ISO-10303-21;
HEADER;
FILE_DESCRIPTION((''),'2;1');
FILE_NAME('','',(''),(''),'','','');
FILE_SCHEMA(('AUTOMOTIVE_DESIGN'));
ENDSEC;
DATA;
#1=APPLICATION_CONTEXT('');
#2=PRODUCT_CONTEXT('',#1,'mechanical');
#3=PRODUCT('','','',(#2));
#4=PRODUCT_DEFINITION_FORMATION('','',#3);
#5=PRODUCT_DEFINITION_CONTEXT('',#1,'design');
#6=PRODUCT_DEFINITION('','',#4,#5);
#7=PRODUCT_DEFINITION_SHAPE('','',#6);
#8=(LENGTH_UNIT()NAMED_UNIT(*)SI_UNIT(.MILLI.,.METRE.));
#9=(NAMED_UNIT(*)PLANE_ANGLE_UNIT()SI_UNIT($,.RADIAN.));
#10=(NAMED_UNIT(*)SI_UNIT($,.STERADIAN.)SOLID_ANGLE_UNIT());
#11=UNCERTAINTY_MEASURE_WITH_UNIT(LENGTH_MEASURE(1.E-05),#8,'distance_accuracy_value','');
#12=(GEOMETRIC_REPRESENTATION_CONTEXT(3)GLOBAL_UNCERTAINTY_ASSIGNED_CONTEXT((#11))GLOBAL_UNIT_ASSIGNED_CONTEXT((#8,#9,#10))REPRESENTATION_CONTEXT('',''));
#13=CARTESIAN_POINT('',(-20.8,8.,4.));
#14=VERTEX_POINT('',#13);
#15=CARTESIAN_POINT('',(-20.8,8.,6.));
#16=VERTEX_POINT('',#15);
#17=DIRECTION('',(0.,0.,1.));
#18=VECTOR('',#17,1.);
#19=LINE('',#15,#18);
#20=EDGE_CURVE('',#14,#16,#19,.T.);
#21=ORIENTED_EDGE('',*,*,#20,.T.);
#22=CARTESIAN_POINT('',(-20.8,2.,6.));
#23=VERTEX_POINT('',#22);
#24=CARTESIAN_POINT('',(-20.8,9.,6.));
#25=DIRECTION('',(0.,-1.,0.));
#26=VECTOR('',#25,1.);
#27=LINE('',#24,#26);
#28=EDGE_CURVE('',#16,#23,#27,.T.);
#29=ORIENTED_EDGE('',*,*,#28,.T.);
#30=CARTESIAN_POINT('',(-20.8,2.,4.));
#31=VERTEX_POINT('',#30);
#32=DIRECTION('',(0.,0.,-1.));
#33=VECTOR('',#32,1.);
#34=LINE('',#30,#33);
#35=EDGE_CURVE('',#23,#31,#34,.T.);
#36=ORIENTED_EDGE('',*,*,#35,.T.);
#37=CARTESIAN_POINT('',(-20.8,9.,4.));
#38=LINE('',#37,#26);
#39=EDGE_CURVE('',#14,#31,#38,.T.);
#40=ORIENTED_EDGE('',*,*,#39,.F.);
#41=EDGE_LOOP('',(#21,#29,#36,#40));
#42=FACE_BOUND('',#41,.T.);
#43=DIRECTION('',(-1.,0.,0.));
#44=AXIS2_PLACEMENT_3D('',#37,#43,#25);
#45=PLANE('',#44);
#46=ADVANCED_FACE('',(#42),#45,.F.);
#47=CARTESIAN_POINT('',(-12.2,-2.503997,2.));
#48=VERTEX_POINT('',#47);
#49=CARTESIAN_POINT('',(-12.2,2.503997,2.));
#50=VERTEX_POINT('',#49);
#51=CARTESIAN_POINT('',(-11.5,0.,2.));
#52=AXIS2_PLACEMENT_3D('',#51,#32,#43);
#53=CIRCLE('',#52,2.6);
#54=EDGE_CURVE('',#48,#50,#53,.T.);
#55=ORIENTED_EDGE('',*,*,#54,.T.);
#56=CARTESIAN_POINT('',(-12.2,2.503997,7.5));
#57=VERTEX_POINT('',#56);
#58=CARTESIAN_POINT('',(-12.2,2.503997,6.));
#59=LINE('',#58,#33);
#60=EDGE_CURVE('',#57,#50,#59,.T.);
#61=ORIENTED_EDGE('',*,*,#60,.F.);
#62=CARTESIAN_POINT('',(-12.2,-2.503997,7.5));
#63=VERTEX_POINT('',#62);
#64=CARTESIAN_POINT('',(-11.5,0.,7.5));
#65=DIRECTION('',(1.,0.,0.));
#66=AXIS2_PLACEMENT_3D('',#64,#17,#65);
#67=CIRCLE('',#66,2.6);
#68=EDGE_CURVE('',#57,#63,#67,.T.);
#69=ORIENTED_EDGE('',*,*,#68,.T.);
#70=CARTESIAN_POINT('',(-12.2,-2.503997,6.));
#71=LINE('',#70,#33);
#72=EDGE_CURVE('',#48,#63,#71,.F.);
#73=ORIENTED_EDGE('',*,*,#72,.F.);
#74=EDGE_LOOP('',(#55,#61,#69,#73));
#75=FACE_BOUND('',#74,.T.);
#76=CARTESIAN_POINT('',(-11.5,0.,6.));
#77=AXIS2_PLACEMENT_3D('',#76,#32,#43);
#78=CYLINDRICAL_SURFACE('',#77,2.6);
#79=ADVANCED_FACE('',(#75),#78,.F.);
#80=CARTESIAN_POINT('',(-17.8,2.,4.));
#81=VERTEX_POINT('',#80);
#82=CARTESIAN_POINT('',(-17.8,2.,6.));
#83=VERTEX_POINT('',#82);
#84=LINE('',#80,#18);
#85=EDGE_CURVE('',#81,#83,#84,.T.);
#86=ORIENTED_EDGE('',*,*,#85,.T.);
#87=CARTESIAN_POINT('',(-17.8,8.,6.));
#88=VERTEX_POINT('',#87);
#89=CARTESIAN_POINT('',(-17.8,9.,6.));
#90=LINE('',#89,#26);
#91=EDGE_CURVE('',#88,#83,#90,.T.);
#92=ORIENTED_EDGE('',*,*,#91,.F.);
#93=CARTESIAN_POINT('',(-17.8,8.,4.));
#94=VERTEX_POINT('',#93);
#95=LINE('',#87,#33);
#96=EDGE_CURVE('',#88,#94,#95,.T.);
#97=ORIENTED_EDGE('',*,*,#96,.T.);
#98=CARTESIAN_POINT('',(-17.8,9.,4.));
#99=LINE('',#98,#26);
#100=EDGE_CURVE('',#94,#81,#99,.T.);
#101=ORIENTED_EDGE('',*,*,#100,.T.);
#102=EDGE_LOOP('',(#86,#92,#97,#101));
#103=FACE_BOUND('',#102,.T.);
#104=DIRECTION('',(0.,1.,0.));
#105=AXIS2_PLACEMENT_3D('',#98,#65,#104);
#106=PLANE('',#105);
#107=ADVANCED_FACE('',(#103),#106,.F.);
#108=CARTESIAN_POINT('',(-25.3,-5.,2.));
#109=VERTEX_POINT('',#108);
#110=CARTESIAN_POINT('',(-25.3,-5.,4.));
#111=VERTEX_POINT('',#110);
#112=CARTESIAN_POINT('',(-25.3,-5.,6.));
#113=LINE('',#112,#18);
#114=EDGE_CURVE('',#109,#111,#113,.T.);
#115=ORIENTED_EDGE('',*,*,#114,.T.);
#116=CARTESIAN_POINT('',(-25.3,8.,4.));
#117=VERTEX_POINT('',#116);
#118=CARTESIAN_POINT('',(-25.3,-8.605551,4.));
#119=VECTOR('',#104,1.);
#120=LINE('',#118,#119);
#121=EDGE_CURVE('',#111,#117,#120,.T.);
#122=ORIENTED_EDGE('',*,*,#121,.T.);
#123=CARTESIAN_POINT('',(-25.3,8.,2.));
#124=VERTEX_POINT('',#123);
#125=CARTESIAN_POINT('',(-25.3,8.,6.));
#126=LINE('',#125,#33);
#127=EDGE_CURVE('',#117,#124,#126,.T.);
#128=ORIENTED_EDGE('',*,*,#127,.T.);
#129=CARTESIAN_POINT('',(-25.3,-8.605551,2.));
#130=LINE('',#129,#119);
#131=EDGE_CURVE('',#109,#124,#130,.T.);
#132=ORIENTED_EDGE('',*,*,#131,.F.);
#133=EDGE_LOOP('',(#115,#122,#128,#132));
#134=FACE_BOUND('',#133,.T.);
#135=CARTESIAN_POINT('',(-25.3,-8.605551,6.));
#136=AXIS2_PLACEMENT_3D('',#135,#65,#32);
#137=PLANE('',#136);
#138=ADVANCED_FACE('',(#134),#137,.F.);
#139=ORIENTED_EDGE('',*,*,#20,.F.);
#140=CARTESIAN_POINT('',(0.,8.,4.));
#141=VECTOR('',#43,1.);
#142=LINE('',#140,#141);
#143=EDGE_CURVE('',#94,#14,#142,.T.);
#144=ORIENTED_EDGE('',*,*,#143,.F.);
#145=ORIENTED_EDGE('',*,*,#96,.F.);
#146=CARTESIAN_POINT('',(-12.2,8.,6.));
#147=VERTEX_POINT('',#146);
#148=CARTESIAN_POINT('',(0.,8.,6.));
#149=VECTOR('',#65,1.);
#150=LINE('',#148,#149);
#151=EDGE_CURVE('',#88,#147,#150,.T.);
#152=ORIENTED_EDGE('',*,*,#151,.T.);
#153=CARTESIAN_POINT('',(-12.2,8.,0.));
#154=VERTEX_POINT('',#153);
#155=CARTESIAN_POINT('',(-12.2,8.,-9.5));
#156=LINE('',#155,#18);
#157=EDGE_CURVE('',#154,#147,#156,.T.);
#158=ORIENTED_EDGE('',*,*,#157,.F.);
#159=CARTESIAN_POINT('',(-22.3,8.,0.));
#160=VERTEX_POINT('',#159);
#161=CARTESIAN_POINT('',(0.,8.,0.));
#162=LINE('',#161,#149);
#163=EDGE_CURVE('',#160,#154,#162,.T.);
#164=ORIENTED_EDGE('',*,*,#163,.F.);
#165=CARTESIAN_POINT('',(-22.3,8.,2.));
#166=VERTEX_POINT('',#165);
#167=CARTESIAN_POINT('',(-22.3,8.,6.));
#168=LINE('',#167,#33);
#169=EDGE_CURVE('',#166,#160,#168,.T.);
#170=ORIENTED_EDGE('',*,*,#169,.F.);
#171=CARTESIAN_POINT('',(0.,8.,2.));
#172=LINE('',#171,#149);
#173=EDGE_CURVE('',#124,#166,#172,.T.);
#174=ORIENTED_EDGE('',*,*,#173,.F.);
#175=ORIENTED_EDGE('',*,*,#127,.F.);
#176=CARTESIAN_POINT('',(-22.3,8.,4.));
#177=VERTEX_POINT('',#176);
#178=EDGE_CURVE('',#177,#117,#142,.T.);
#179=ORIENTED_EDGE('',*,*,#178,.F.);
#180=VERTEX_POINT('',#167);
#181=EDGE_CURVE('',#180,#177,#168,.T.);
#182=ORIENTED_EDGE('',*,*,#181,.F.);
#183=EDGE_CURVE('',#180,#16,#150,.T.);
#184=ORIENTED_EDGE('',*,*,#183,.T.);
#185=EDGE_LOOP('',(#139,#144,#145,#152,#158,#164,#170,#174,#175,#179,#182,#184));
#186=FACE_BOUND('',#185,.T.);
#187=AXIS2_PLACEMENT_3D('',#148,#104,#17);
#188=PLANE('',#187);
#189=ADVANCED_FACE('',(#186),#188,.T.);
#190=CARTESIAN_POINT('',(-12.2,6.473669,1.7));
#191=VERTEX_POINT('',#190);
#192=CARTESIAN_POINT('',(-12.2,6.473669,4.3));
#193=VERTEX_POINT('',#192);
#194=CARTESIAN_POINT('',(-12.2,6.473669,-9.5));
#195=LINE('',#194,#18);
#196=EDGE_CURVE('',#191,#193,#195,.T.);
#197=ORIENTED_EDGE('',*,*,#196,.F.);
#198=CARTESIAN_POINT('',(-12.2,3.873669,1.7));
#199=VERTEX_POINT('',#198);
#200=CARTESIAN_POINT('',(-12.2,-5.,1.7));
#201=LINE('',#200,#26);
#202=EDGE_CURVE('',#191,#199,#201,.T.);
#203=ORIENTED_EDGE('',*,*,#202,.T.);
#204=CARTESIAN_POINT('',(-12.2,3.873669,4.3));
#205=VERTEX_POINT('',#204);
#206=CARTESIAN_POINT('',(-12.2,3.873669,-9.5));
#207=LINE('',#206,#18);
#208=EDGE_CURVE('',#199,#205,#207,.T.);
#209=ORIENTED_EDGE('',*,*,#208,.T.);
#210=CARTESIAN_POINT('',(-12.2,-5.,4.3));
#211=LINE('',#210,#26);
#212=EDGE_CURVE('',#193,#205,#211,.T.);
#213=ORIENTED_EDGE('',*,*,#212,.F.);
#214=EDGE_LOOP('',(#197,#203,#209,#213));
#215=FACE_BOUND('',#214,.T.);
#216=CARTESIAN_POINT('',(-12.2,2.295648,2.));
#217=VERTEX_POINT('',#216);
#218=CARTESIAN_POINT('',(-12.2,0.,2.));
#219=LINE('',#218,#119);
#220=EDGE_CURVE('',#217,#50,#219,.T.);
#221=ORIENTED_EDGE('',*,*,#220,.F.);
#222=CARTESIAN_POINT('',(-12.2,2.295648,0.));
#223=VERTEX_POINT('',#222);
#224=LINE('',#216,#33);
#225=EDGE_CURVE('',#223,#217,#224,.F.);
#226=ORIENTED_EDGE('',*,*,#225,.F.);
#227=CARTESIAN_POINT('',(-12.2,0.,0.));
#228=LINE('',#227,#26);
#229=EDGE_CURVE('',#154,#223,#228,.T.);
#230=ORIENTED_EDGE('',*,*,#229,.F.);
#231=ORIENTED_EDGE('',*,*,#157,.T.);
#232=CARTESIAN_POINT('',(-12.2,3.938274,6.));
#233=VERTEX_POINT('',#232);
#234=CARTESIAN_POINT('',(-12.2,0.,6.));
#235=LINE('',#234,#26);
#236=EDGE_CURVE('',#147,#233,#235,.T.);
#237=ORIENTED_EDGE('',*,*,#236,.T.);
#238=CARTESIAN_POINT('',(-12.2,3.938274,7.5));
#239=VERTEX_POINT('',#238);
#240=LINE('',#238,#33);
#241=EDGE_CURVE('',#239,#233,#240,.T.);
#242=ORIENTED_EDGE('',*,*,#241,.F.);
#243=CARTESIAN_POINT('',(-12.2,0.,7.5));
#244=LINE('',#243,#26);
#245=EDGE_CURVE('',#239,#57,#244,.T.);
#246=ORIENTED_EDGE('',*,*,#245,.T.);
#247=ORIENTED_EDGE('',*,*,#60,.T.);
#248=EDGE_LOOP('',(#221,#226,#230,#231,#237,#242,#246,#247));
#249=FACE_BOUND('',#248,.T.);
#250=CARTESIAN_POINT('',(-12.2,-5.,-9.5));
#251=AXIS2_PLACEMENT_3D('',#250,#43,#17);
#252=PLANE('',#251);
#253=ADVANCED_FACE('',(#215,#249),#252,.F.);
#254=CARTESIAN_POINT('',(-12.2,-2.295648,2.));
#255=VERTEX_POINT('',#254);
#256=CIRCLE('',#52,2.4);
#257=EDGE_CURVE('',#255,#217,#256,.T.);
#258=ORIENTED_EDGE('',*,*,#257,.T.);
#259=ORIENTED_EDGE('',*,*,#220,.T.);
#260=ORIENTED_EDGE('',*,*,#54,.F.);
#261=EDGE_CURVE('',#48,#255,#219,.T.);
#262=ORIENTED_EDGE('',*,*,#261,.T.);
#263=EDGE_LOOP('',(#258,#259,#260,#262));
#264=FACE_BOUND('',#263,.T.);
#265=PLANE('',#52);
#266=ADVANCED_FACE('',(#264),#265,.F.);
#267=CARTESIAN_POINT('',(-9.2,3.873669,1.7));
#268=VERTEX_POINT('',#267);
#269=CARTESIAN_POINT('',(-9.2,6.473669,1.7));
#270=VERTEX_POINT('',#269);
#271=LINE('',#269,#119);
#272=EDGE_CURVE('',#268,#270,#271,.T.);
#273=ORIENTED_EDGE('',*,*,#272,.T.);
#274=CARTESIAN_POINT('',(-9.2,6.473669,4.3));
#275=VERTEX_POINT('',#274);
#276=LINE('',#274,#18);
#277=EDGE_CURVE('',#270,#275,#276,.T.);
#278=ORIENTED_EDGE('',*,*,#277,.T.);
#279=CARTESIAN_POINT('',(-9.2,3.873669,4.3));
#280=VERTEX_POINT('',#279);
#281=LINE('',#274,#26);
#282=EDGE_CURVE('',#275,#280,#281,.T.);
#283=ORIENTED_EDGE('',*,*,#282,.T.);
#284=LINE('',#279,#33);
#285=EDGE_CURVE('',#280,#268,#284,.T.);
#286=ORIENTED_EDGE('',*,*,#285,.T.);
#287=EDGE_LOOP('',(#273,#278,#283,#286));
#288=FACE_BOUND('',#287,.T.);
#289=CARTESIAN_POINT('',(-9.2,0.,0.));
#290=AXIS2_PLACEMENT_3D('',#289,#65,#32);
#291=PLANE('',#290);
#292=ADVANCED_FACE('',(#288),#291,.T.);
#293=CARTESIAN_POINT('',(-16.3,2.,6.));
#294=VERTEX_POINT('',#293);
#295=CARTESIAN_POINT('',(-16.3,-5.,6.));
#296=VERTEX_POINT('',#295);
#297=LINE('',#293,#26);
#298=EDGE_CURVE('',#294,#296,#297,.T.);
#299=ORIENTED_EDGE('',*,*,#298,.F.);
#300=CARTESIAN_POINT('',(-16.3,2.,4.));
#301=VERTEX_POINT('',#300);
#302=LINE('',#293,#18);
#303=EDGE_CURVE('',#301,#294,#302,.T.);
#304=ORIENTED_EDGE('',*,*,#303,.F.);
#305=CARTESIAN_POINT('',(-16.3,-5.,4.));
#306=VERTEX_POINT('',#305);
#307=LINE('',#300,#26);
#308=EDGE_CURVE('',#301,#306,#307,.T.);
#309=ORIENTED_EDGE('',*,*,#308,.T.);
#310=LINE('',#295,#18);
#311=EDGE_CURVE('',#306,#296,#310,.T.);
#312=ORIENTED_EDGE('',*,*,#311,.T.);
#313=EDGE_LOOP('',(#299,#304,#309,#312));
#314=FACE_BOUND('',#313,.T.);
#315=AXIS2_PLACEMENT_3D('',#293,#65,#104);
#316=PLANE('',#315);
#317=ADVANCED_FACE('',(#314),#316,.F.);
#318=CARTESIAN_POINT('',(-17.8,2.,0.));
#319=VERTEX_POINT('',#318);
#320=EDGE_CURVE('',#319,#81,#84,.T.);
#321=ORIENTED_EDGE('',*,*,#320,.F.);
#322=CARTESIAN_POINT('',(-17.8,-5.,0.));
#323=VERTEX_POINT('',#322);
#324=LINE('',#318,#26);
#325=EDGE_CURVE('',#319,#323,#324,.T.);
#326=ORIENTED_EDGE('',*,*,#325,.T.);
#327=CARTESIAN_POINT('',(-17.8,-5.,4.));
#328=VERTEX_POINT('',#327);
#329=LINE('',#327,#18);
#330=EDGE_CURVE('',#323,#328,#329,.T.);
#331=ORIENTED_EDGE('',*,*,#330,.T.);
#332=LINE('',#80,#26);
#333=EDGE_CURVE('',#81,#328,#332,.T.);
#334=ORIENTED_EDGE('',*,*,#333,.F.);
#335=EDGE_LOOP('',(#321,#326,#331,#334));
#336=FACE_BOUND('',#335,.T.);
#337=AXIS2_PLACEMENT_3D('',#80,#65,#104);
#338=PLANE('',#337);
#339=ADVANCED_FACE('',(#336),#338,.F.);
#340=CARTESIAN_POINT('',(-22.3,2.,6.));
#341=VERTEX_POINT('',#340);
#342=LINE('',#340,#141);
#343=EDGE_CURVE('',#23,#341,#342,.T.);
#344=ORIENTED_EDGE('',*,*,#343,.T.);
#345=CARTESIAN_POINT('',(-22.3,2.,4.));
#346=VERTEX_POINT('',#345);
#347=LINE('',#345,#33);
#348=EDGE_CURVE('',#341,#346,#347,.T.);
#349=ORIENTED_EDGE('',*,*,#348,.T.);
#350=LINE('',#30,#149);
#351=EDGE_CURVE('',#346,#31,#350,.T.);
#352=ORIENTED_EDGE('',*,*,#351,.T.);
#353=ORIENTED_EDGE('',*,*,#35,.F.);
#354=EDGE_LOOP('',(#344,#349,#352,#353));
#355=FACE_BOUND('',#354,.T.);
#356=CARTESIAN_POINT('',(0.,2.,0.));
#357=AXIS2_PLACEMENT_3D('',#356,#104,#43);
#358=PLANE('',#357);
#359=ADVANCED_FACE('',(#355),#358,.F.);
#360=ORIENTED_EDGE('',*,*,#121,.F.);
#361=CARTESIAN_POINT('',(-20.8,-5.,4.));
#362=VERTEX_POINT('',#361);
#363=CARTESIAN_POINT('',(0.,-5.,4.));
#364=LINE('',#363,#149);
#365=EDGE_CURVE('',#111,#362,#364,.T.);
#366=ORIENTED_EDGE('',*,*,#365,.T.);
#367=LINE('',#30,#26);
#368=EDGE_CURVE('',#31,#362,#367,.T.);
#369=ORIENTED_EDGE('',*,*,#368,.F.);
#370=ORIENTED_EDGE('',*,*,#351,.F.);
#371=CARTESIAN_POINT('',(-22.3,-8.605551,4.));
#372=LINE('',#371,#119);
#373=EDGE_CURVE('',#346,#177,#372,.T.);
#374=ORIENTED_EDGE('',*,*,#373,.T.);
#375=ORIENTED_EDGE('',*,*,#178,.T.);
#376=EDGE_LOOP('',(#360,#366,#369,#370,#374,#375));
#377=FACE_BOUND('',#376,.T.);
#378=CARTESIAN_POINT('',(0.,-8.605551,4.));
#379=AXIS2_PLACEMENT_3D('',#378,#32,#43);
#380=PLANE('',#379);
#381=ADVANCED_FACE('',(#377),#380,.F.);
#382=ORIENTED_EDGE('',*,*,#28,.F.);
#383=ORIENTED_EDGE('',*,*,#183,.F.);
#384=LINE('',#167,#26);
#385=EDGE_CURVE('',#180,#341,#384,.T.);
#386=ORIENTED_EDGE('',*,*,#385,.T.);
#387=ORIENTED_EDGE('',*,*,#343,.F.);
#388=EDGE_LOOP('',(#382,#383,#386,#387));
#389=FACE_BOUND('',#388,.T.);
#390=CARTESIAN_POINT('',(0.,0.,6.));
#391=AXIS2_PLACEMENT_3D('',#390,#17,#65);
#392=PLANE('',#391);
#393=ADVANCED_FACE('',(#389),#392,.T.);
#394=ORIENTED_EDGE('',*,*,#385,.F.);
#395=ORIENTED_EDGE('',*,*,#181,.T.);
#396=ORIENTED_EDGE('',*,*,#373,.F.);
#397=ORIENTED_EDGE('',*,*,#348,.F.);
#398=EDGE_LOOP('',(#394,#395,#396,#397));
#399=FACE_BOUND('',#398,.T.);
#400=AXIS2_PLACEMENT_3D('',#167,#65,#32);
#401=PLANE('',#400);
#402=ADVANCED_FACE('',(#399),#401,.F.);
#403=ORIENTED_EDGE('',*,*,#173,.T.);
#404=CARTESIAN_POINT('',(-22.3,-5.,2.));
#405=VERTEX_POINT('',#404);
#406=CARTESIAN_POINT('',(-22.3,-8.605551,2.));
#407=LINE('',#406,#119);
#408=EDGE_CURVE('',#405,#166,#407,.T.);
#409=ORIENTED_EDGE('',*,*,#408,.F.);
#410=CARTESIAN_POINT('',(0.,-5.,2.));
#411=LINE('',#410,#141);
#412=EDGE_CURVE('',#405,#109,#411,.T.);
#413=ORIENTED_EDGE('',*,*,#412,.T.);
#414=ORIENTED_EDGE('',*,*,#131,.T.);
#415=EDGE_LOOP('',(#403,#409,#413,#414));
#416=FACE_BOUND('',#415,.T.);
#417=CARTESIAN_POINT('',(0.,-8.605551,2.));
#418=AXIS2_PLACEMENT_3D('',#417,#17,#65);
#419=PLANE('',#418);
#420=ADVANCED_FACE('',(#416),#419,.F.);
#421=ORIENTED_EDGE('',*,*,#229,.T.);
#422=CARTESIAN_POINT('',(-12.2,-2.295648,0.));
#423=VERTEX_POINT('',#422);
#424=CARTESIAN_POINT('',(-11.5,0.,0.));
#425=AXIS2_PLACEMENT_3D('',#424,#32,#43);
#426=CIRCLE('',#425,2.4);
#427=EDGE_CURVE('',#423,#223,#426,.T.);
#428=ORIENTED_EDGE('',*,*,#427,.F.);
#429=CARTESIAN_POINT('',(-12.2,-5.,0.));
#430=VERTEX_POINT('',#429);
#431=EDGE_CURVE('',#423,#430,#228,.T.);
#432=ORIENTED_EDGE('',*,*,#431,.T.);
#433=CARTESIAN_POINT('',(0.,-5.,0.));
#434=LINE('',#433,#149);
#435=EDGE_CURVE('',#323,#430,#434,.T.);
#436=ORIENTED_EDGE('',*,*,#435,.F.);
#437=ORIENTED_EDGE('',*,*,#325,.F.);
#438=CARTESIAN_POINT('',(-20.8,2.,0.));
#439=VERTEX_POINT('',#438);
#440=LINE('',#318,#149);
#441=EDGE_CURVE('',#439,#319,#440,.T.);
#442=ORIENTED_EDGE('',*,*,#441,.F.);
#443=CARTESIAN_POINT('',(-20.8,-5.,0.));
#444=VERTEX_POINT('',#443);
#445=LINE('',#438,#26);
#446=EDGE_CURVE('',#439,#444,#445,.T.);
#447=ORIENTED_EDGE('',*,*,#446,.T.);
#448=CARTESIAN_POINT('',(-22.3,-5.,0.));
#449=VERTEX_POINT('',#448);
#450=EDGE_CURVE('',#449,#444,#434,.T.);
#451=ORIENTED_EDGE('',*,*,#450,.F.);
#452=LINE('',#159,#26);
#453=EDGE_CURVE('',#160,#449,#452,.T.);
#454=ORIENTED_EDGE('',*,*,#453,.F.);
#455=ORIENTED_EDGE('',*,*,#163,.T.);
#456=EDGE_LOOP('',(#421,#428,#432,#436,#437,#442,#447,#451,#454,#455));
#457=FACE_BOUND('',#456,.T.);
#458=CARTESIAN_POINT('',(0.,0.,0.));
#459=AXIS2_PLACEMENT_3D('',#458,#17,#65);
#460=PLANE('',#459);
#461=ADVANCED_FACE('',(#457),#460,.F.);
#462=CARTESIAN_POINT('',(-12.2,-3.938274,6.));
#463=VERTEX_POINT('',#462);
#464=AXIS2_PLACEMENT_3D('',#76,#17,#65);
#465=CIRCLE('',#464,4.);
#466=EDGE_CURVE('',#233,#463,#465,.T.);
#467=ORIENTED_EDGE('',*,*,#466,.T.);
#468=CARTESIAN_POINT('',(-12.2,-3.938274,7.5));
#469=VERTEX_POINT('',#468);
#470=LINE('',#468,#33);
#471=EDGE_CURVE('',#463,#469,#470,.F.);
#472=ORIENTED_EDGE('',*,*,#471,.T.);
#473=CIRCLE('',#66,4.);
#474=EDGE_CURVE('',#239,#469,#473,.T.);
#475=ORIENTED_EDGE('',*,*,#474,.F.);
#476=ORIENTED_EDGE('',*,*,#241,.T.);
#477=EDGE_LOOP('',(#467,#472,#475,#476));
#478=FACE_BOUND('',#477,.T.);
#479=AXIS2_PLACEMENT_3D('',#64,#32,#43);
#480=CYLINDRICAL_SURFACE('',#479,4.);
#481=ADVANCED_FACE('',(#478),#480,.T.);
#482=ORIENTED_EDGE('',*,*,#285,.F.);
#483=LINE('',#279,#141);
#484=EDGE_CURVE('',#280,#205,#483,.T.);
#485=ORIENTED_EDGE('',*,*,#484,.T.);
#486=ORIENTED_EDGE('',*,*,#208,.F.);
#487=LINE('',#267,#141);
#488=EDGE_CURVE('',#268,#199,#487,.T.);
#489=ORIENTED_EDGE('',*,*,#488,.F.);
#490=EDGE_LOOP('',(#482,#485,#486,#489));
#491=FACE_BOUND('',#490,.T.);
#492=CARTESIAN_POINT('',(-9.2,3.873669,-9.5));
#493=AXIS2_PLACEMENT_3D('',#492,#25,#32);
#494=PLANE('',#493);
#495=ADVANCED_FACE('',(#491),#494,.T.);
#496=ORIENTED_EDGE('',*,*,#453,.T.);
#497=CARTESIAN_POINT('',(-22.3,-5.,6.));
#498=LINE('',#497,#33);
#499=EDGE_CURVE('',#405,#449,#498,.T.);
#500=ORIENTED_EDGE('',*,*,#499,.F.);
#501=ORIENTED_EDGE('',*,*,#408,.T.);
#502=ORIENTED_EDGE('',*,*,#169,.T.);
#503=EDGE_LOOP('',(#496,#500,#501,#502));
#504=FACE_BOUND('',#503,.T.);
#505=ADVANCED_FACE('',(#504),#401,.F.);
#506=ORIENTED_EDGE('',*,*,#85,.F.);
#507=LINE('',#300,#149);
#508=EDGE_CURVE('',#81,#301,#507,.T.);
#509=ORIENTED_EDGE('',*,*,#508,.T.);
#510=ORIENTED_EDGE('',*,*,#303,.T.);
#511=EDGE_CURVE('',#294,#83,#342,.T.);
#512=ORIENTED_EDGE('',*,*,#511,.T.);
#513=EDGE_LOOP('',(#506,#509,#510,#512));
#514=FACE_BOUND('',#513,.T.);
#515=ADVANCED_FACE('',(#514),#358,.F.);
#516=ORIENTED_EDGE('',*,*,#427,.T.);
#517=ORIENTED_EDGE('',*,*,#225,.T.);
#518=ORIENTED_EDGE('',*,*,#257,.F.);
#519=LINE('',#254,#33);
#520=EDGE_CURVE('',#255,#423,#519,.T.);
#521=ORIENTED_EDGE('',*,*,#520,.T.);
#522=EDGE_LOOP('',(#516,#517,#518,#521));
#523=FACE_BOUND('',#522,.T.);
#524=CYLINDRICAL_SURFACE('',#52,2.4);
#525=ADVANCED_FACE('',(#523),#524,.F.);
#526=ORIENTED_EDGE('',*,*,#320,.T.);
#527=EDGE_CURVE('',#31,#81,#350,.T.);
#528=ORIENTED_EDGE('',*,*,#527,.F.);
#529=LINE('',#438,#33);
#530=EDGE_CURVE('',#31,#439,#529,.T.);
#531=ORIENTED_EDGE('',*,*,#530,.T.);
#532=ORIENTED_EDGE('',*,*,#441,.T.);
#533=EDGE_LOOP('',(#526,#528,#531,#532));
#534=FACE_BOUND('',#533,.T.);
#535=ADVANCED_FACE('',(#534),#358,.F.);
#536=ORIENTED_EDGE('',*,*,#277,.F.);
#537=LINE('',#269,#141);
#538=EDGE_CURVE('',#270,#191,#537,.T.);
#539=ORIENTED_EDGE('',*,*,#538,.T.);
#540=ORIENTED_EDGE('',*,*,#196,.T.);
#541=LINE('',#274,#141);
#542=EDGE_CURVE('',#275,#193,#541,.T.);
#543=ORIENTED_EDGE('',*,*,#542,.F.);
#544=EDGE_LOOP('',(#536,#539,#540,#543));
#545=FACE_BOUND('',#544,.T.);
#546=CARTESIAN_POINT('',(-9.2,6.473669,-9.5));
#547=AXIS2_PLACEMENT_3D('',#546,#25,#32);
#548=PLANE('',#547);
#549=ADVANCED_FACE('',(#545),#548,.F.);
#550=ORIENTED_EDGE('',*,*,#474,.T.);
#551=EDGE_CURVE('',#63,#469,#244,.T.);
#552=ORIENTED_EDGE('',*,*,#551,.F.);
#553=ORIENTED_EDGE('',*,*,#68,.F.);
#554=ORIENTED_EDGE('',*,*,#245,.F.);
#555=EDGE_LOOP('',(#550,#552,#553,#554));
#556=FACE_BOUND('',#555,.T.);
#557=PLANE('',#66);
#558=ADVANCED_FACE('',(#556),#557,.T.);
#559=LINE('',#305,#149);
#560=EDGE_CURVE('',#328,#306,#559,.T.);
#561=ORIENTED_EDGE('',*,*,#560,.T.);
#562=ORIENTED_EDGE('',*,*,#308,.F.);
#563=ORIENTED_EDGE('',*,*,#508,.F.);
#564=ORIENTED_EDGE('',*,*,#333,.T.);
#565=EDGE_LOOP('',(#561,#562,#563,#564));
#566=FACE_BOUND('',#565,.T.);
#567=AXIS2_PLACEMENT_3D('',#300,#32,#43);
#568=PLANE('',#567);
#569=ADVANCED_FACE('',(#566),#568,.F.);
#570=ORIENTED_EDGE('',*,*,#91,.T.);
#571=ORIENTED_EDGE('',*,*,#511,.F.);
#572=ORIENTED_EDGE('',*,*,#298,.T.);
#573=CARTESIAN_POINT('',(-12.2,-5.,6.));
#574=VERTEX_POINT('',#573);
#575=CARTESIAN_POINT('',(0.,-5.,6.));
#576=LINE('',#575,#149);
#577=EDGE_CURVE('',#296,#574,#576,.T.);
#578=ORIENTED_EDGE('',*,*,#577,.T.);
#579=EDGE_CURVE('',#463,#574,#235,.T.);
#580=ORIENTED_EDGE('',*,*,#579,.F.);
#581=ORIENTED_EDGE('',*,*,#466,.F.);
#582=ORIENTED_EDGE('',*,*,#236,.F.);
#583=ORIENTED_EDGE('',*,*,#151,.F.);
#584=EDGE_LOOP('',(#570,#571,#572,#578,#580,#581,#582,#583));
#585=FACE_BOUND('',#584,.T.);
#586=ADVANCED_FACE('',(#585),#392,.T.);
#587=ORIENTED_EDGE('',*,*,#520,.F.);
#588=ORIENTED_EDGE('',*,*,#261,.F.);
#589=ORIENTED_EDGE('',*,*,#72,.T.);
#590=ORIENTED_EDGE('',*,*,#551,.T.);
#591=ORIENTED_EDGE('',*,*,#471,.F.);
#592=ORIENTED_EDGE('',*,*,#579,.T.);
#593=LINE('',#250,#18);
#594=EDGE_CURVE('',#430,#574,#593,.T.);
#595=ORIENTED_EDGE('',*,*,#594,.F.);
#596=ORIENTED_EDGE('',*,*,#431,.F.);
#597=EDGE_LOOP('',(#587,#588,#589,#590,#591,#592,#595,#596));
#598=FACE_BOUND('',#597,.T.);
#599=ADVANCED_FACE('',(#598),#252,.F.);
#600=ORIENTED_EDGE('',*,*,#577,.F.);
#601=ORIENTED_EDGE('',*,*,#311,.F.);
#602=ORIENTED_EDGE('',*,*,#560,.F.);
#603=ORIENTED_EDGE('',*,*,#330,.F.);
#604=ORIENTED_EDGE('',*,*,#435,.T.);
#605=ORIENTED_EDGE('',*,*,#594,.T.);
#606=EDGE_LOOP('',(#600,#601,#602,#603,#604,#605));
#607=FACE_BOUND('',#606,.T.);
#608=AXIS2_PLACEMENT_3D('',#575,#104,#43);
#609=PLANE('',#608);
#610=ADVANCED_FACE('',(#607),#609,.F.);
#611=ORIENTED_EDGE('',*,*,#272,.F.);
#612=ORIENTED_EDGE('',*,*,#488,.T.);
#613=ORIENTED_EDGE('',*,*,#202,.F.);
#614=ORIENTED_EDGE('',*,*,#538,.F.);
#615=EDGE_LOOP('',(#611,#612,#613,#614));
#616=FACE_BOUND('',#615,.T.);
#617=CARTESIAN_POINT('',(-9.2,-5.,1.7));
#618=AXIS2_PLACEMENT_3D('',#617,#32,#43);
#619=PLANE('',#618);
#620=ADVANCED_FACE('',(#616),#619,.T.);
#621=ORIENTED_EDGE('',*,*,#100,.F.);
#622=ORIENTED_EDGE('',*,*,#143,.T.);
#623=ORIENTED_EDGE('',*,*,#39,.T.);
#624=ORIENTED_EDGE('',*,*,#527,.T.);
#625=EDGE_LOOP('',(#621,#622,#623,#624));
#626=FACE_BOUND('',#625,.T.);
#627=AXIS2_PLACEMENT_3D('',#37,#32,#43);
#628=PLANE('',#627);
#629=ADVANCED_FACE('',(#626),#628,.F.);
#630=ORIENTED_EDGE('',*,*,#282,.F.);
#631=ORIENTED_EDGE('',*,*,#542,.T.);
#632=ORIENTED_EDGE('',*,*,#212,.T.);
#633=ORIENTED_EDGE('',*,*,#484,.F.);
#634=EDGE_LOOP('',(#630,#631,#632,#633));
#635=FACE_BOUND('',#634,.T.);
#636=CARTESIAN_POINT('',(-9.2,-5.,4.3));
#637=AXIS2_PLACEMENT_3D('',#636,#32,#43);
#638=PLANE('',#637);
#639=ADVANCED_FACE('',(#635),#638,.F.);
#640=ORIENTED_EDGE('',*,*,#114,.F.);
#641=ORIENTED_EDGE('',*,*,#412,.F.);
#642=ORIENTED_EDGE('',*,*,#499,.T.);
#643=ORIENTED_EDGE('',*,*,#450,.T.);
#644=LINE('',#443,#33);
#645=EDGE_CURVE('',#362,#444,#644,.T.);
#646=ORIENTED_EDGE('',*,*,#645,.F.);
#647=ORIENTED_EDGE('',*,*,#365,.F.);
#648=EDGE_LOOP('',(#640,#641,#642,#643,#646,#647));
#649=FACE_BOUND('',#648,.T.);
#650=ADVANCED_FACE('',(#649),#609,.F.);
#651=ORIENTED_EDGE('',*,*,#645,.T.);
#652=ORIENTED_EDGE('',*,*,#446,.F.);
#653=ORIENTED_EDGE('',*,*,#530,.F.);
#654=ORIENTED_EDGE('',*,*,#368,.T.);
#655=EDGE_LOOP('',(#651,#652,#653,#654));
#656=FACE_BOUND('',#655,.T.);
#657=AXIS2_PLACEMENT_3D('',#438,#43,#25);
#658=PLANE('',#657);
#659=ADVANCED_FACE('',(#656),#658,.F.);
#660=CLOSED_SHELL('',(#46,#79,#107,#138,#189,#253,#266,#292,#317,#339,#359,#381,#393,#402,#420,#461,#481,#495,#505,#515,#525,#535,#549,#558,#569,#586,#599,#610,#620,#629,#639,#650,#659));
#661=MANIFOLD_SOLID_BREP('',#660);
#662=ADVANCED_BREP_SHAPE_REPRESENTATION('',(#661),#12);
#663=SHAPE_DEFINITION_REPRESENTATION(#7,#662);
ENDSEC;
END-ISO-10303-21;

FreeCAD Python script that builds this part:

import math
import FreeCAD as App
import Part
import Sketcher

doc = App.newDocument("Part")
body = doc.addObject("PartDesign::Body", "Body")
body.AllowCompound = True

sketch1 = body.newObject("Sketcher::SketchObject", "Sketch")
sketch1.AttachmentSupport = (doc.getObject("XY_Plane"), [""])
sketch1.MapMode = "FlatFace"
sketch1.addGeometry([
    Part.ArcOfCircle(Part.Circle(App.Vector(0, 0, 0), App.Vector(0, 0, 1), 6.3), math.radians(-53.13), math.radians(-35.31)),
    Part.LineSegment(App.Vector(3.8, -5, 0), App.Vector(14.7, -5, 0)),
    Part.LineSegment(App.Vector(14.7, -5, 0), App.Vector(14.7, 8, 0)),
    Part.LineSegment(App.Vector(14.7, 8, 0), App.Vector(-14.7, 8, 0)),
    Part.LineSegment(App.Vector(-14.7, 8, 0), App.Vector(-14.7, -5, 0)),
    Part.LineSegment(App.Vector(-14.7, -5, 0), App.Vector(-3.8, -5, 0)),
    Part.ArcOfCircle(Part.Circle(App.Vector(0, 0, 0), App.Vector(0, 0, 1), 6.3), math.radians(-144.69), math.radians(-126.87)),
    Part.LineSegment(App.Vector(-5.1, -3.6, 0), App.Vector(-5.1, 3.6, 0)),
    Part.ArcOfCircle(Part.Circle(App.Vector(0, 0, 0), App.Vector(0, 0, 1), 6.2), math.radians(35), math.radians(145)),
    Part.LineSegment(App.Vector(5.1, 3.6, 0), App.Vector(5.1, -3.6, 0)),
    Part.Circle(App.Vector(11.5, 0, 0), App.Vector(0, 0, 1), 1),
    Part.Circle(App.Vector(-11.5, 0, 0), App.Vector(0, 0, 1), 1),
], False)
sketch1.addConstraint([
    Sketcher.Constraint("Coincident", 0, 1, 1, 1),
    Sketcher.Constraint("Coincident", 1, 2, 2, 1),
    Sketcher.Constraint("Coincident", 2, 2, 3, 1),
    Sketcher.Constraint("Coincident", 3, 2, 4, 1),
    Sketcher.Constraint("Coincident", 4, 2, 5, 1),
    Sketcher.Constraint("Coincident", 5, 2, 6, 2),
    Sketcher.Constraint("Coincident", 6, 1, 7, 1),
    Sketcher.Constraint("Coincident", 7, 2, 8, 2),
    Sketcher.Constraint("Coincident", 8, 1, 9, 1),
    Sketcher.Constraint("Coincident", 9, 2, 0, 2),
    Sketcher.Constraint("Horizontal", 1),
    Sketcher.Constraint("Vertical", 2),
    Sketcher.Constraint("Horizontal", 3),
    Sketcher.Constraint("Vertical", 4),
    Sketcher.Constraint("Horizontal", 5),
    Sketcher.Constraint("Vertical", 7),
    Sketcher.Constraint("Vertical", 9),
    Sketcher.Constraint("Coincident", 0, 3, -1, 1),
    Sketcher.Constraint("Coincident", 6, 3, -1, 1),
    Sketcher.Constraint("Coincident", 8, 3, -1, 1),
    Sketcher.Constraint("Equal", 0, 6),
    Sketcher.Constraint("Equal", 6, 8),
    Sketcher.Constraint("Equal", 10, 11),
    Sketcher.Constraint("Symmetric", 10, 3, 11, 3, -1, 1),
    Sketcher.Constraint("Symmetric", 1, 2, 4, 2, -2),
    Sketcher.Constraint("PointOnObject", 10, 3, -1),
    Sketcher.Constraint("Horizontal", 7, 2, 8, 1),
    Sketcher.Constraint("Diameter", 10, 2.0),
    Sketcher.Constraint("DistanceY", 2, 1, 2, 2, 13.0),
    Sketcher.Constraint("Radius", 0, 6.25),
    Sketcher.Constraint("DistanceX", 3, 2, 3, 1, 29.4),
    Sketcher.Constraint("DistanceY", 0, 1, -1, 1, 5.0),
    Sketcher.Constraint("DistanceX", 11, 3, 10, 3, 23.0),
    Sketcher.Constraint("DistanceX", 6, 1, -1, 1, 5.1),
])
pad1 = body.newObject("PartDesign::Pad", "Pad")
pad1.Profile = sketch1
pad1.Length = 6

sketch2 = body.newObject("Sketcher::SketchObject", "Sketch001")
sketch2.AttachmentSupport = (doc.getObject("XY_Plane"), [""])
sketch2.MapMode = "FlatFace"
sketch2.addGeometry([
    Part.Circle(App.Vector(-11.5, 0, 0), App.Vector(0, 0, 1), 2.6),
    Part.Circle(App.Vector(11.5, 0, 0), App.Vector(0, 0, 1), 2.6),
], False)
sketch2.addConstraint([
    Sketcher.Constraint("Equal", 0, 1),
    Sketcher.Constraint("Symmetric", 0, 3, 1, 3, -1, 1),
    Sketcher.Constraint("PointOnObject", 0, 3, -1),
    Sketcher.Constraint("Diameter", 0, 5.2),
    Sketcher.Constraint("DistanceX", 0, 3, 1, 3, 23.0),
])
pocket1 = body.newObject("PartDesign::Pocket", "Pocket")
pocket1.Profile = sketch2
pocket1.Length = 6
pocket1.Reversed = True

sketch3 = body.newObject("Sketcher::SketchObject", "Sketch002")
sketch3.AttachmentSupport = (doc.getObject("XY_Plane"), [""])
sketch3.MapMode = "FlatFace"
sketch3.addGeometry([
    Part.LineSegment(App.Vector(-22, 8, 0), App.Vector(-22, -5, 0)),
    Part.LineSegment(App.Vector(-22, -5, 0), App.Vector(-15, -5, 0)),
    Part.LineSegment(App.Vector(-15, -5, 0), App.Vector(-15, 8, 0)),
    Part.LineSegment(App.Vector(-15, 8, 0), App.Vector(-22, 8, 0)),
], False)
sketch3.addConstraint([
    Sketcher.Constraint("Coincident", 0, 2, 1, 1),
    Sketcher.Constraint("Coincident", 1, 2, 2, 1),
    Sketcher.Constraint("Coincident", 2, 2, 3, 1),
    Sketcher.Constraint("Coincident", 3, 2, 0, 1),
    Sketcher.Constraint("Vertical", 0),
    Sketcher.Constraint("Horizontal", 1),
    Sketcher.Constraint("Vertical", 2),
    Sketcher.Constraint("Horizontal", 3),
    Sketcher.Constraint("DistanceY", 0, 2, 0, 1, 13.0),
    Sketcher.Constraint("DistanceX", 1, 1, 1, 2, 7.6),
    Sketcher.Constraint("DistanceY", 0, 2, -1, 1, 5.0),
    Sketcher.Constraint("DistanceX", 0, 2, -1, 1, 22.3),
])
pad2 = body.newObject("PartDesign::Pad", "Pad001")
pad2.Profile = sketch3
pad2.Length = 6

sketch4 = body.newObject("Sketcher::SketchObject", "Sketch003")
sketch4.AttachmentSupport = (doc.getObject("XZ_Plane"), [""])
sketch4.MapMode = "FlatFace"
sketch4.AttachmentOffset = App.Placement(App.Vector(0, 0, 5), App.Rotation())
sketch4.addGeometry([
    Part.LineSegment(App.Vector(-25.3, 2, 0), App.Vector(-25.3, 4, 0)),
    Part.LineSegment(App.Vector(-25.3, 4, 0), App.Vector(-22.3, 4, 0)),
    Part.LineSegment(App.Vector(-22.3, 4, 0), App.Vector(-22.3, 2, 0)),
    Part.LineSegment(App.Vector(-22.3, 2, 0), App.Vector(-25.3, 2, 0)),
    Part.LineSegment(App.Vector(14.7, 2, 0), App.Vector(14.7, 4, 0)),
    Part.LineSegment(App.Vector(14.7, 4, 0), App.Vector(17.7, 4, 0)),
    Part.LineSegment(App.Vector(17.7, 4, 0), App.Vector(17.7, 2, 0)),
    Part.LineSegment(App.Vector(17.7, 2, 0), App.Vector(14.7, 2, 0)),
], False)
sketch4.addConstraint([
    Sketcher.Constraint("Coincident", 0, 2, 1, 1),
    Sketcher.Constraint("Coincident", 1, 2, 2, 1),
    Sketcher.Constraint("Coincident", 2, 2, 3, 1),
    Sketcher.Constraint("Coincident", 3, 2, 0, 1),
    Sketcher.Constraint("Coincident", 4, 2, 5, 1),
    Sketcher.Constraint("Coincident", 5, 2, 6, 1),
    Sketcher.Constraint("Coincident", 6, 2, 7, 1),
    Sketcher.Constraint("Coincident", 7, 2, 4, 1),
    Sketcher.Constraint("Vertical", 0),
    Sketcher.Constraint("Horizontal", 1),
    Sketcher.Constraint("Vertical", 2),
    Sketcher.Constraint("Horizontal", 3),
    Sketcher.Constraint("Vertical", 4),
    Sketcher.Constraint("Horizontal", 5),
    Sketcher.Constraint("Vertical", 6),
    Sketcher.Constraint("Horizontal", 7),
    Sketcher.Constraint("Horizontal", 1, 2, 4, 2),
    Sketcher.Constraint("Horizontal", 3, 2, 6, 2),
    Sketcher.Constraint("Equal", 3, 5),
    Sketcher.Constraint("DistanceX", 1, 1, 1, 2, 3.0),
    Sketcher.Constraint("DistanceY", 0, 1, 0, 2, 2.0),
    Sketcher.Constraint("DistanceY", -1, 1, 0, 2, 4.0),
    Sketcher.Constraint("DistanceX", 1, 2, 4, 2, 37.0),
    Sketcher.Constraint("DistanceX", 0, 2, -1, 1, 25.3),
])
pad3 = body.newObject("PartDesign::Pad", "Pad002")
pad3.Profile = sketch4
pad3.Length = 13
pad3.Reversed = True

sketch5 = body.newObject("Sketcher::SketchObject", "Sketch004")
sketch5.AttachmentSupport = (doc.getObject("XY_Plane"), [""])
sketch5.MapMode = "FlatFace"
sketch5.AttachmentOffset = App.Placement(App.Vector(0, 0, 6), App.Rotation())
sketch5.addGeometry([
    Part.Circle(App.Vector(-11.5, 0, 0), App.Vector(0, 0, 1), 4),
    Part.Circle(App.Vector(-11.5, 0, 0), App.Vector(0, 0, 1), 2.6),
    Part.LineSegment(App.Vector(14.7, -2.4, 0), App.Vector(14.7, 2.4, 0)),
    Part.ArcOfCircle(Part.Circle(App.Vector(11.5, 0, 0), App.Vector(0, 0, 1), 4), math.radians(37), math.radians(323)),
    Part.Circle(App.Vector(11.5, 0, 0), App.Vector(0, 0, 1), 2.6),
], False)
sketch5.addConstraint([
    Sketcher.Constraint("Coincident", 2, 1, 3, 2),
    Sketcher.Constraint("Coincident", 3, 1, 2, 2),
    Sketcher.Constraint("Vertical", 2),
    Sketcher.Constraint("Coincident", 1, 3, 0, 3),
    Sketcher.Constraint("Coincident", 4, 3, 3, 3),
    Sketcher.Constraint("Equal", 0, 3),
    Sketcher.Constraint("Equal", 1, 4),
    Sketcher.Constraint("Symmetric", 0, 3, 3, 3, -1, 1),
    Sketcher.Constraint("PointOnObject", 0, 3, -1),
    Sketcher.Constraint("Diameter", 0, 8.0),
    Sketcher.Constraint("Diameter", 1, 5.2),
    Sketcher.Constraint("DistanceY", 2, 1, 2, 2, 4.8),
    Sketcher.Constraint("DistanceX", 0, 3, 3, 3, 23.0),
])
pad4 = body.newObject("PartDesign::Pad", "Pad003")
pad4.Profile = sketch5
pad4.Length = 1.5

sketch6 = body.newObject("Sketcher::SketchObject", "Sketch005")
sketch6.AttachmentSupport = (doc.getObject("XY_Plane"), [""])
sketch6.MapMode = "FlatFace"
sketch6.addGeometry([
    Part.Circle(App.Vector(-11.5, 0, 0), App.Vector(0, 0, 1), 2.6),
    Part.Circle(App.Vector(-11.5, 0, 0), App.Vector(0, 0, 1), 2.4),
    Part.Circle(App.Vector(11.5, 0, 0), App.Vector(0, 0, 1), 2.6),
    Part.Circle(App.Vector(11.5, 0, 0), App.Vector(0, 0, 1), 2.4),
], False)
sketch6.addConstraint([
    Sketcher.Constraint("Coincident", 1, 3, 0, 3),
    Sketcher.Constraint("Coincident", 3, 3, 2, 3),
    Sketcher.Constraint("Equal", 0, 2),
    Sketcher.Constraint("Equal", 1, 3),
    Sketcher.Constraint("Symmetric", 0, 3, 2, 3, -1, 1),
    Sketcher.Constraint("PointOnObject", 0, 3, -1),
    Sketcher.Constraint("Diameter", 0, 5.2),
    Sketcher.Constraint("Diameter", 1, 4.8),
    Sketcher.Constraint("DistanceX", 0, 3, 2, 3, 23.0),
])
pad5 = body.newObject("PartDesign::Pad", "Pad004")
pad5.Profile = sketch6
pad5.Length = 2

sketch7 = body.newObject("Sketcher::SketchObject", "Sketch006")
sketch7.AttachmentSupport = (doc.getObject("XZ_Plane"), [""])
sketch7.MapMode = "FlatFace"
sketch7.AttachmentOffset = App.Placement(App.Vector(0, 0, 5), App.Rotation())
sketch7.addGeometry([
    Part.LineSegment(App.Vector(-16.3, 6, 0), App.Vector(-22.3, 6, 0)),
    Part.LineSegment(App.Vector(-22.3, 6, 0), App.Vector(-22.3, 4, 0)),
    Part.LineSegment(App.Vector(-22.3, 4, 0), App.Vector(-20.8, 4, 0)),
    Part.LineSegment(App.Vector(-20.8, 4, 0), App.Vector(-20.8, 0, 0)),
    Part.LineSegment(App.Vector(-20.8, 0, 0), App.Vector(-17.8, 0, 0)),
    Part.LineSegment(App.Vector(-17.8, 0, 0), App.Vector(-17.8, 4, 0)),
    Part.LineSegment(App.Vector(-17.8, 4, 0), App.Vector(-16.3, 4, 0)),
    Part.LineSegment(App.Vector(-16.3, 4, 0), App.Vector(-16.3, 6, 0)),
], False)
sketch7.addConstraint([
    Sketcher.Constraint("Coincident", 0, 2, 1, 1),
    Sketcher.Constraint("Coincident", 1, 2, 2, 1),
    Sketcher.Constraint("Coincident", 2, 2, 3, 1),
    Sketcher.Constraint("Coincident", 3, 2, 4, 1),
    Sketcher.Constraint("Coincident", 4, 2, 5, 1),
    Sketcher.Constraint("Coincident", 5, 2, 6, 1),
    Sketcher.Constraint("Coincident", 6, 2, 7, 1),
    Sketcher.Constraint("Coincident", 7, 2, 0, 1),
    Sketcher.Constraint("Horizontal", 0),
    Sketcher.Constraint("Vertical", 1),
    Sketcher.Constraint("Horizontal", 2),
    Sketcher.Constraint("Vertical", 3),
    Sketcher.Constraint("Horizontal", 4),
    Sketcher.Constraint("Vertical", 5),
    Sketcher.Constraint("Horizontal", 6),
    Sketcher.Constraint("Vertical", 7),
    Sketcher.Constraint("PointOnObject", 3, 2, -1),
    Sketcher.Constraint("Horizontal", 2, 2, 5, 2),
    Sketcher.Constraint("Equal", 2, 6),
    Sketcher.Constraint("DistanceX", 0, 2, 0, 1, 6.0),
    Sketcher.Constraint("DistanceX", 4, 1, 4, 2, 3.0),
    Sketcher.Constraint("DistanceY", 1, 2, 1, 1, 2.0),
    Sketcher.Constraint("DistanceY", 3, 2, 3, 1, 4.0),
    Sketcher.Constraint("DistanceX", 0, 2, -1, 1, 22.3),
])
pocket2 = body.newObject("PartDesign::Pocket", "Pocket001")
pocket2.Profile = sketch7
pocket2.Length = 7

sketch8 = body.newObject("Sketcher::SketchObject", "Sketch007")
sketch8.AttachmentSupport = (doc.getObject("XZ_Plane"), [""])
sketch8.MapMode = "FlatFace"
sketch8.AttachmentOffset = App.Placement(App.Vector(0, 0, -2), App.Rotation())
sketch8.addGeometry([
    Part.LineSegment(App.Vector(-20.8, 6, 0), App.Vector(-20.8, 4, 0)),
    Part.LineSegment(App.Vector(-20.8, 4, 0), App.Vector(-17.8, 4, 0)),
    Part.LineSegment(App.Vector(-17.8, 4, 0), App.Vector(-17.8, 6, 0)),
    Part.LineSegment(App.Vector(-17.8, 6, 0), App.Vector(-20.8, 6, 0)),
], False)
sketch8.addConstraint([
    Sketcher.Constraint("Coincident", 0, 2, 1, 1),
    Sketcher.Constraint("Coincident", 1, 2, 2, 1),
    Sketcher.Constraint("Coincident", 2, 2, 3, 1),
    Sketcher.Constraint("Coincident", 3, 2, 0, 1),
    Sketcher.Constraint("Vertical", 0),
    Sketcher.Constraint("Horizontal", 1),
    Sketcher.Constraint("Vertical", 2),
    Sketcher.Constraint("Horizontal", 3),
    Sketcher.Constraint("DistanceX", 1, 1, 1, 2, 3.0),
    Sketcher.Constraint("DistanceY", 0, 2, 0, 1, 2.0),
    Sketcher.Constraint("DistanceY", -1, 1, 0, 2, 4.0),
    Sketcher.Constraint("DistanceX", 0, 2, -1, 1, 20.8),
])
pocket3 = body.newObject("PartDesign::Pocket", "Pocket002")
pocket3.Profile = sketch8
pocket3.Length = 7

sketch9 = body.newObject("Sketcher::SketchObject", "Sketch008")
sketch9.AttachmentSupport = (doc.getObject("XY_Plane"), [""])
sketch9.MapMode = "FlatFace"
sketch9.addGeometry([
    Part.LineSegment(App.Vector(-12.2, 8, 0), App.Vector(-12.2, -5, 0)),
    Part.LineSegment(App.Vector(-12.2, -5, 0), App.Vector(-12, -5, 0)),
    Part.LineSegment(App.Vector(-12, -5, 0), App.Vector(-12, 8, 0)),
    Part.LineSegment(App.Vector(-12, 8, 0), App.Vector(-12.2, 8, 0)),
    Part.LineSegment(App.Vector(12, 8, 0), App.Vector(12, -5, 0)),
    Part.LineSegment(App.Vector(12, -5, 0), App.Vector(12.2, -5, 0)),
    Part.LineSegment(App.Vector(12.2, -5, 0), App.Vector(12.2, 8, 0)),
    Part.LineSegment(App.Vector(12.2, 8, 0), App.Vector(12, 8, 0)),
], False)
sketch9.addConstraint([
    Sketcher.Constraint("Coincident", 0, 2, 1, 1),
    Sketcher.Constraint("Coincident", 1, 2, 2, 1),
    Sketcher.Constraint("Coincident", 2, 2, 3, 1),
    Sketcher.Constraint("Coincident", 3, 2, 0, 1),
    Sketcher.Constraint("Coincident", 4, 2, 5, 1),
    Sketcher.Constraint("Coincident", 5, 2, 6, 1),
    Sketcher.Constraint("Coincident", 6, 2, 7, 1),
    Sketcher.Constraint("Coincident", 7, 2, 4, 1),
    Sketcher.Constraint("Vertical", 0),
    Sketcher.Constraint("Horizontal", 1),
    Sketcher.Constraint("Vertical", 2),
    Sketcher.Constraint("Horizontal", 3),
    Sketcher.Constraint("Vertical", 4),
    Sketcher.Constraint("Horizontal", 5),
    Sketcher.Constraint("Vertical", 6),
    Sketcher.Constraint("Horizontal", 7),
    Sketcher.Constraint("Symmetric", 1, 2, 4, 2, -2),
    Sketcher.Constraint("Symmetric", 3, 2, 6, 2, -2),
    Sketcher.Constraint("DistanceY", 0, 2, 0, 1, 13.0),
    Sketcher.Constraint("DistanceX", 1, 1, 1, 2, 0.2),
    Sketcher.Constraint("DistanceY", 0, 2, -1, 1, 5.0),
    Sketcher.Constraint("DistanceX", 1, 2, -1, 1, 12.0),
])
pocket4 = body.newObject("PartDesign::Pocket", "Pocket003")
pocket4.Profile = sketch9
pocket4.Length = 19
pocket4.Midplane = True

sketch10 = body.newObject("Sketcher::SketchObject", "Sketch009")
sketch10.AttachmentSupport = (doc.getObject("YZ_Plane"), [""])
sketch10.MapMode = "FlatFace"
sketch10.AttachmentOffset = App.Placement(App.Vector(0, 0, -12), App.Rotation())
sketch10.addGeometry([
    Part.LineSegment(App.Vector(6.7, 1.5, 0), App.Vector(3.7, 1.5, 0)),
    Part.LineSegment(App.Vector(3.7, 1.5, 0), App.Vector(3.7, 4.5, 0)),
    Part.LineSegment(App.Vector(3.7, 4.5, 0), App.Vector(6.7, 4.5, 0)),
    Part.LineSegment(App.Vector(6.7, 4.5, 0), App.Vector(6.7, 1.5, 0)),
], False)
sketch10.addConstraint([
    Sketcher.Constraint("Coincident", 0, 2, 1, 1),
    Sketcher.Constraint("Coincident", 1, 2, 2, 1),
    Sketcher.Constraint("Coincident", 2, 2, 3, 1),
    Sketcher.Constraint("Coincident", 3, 2, 0, 1),
    Sketcher.Constraint("Horizontal", 0),
    Sketcher.Constraint("Vertical", 1),
    Sketcher.Constraint("Horizontal", 2),
    Sketcher.Constraint("Vertical", 3),
    Sketcher.Constraint("Equal", 2, 1),
    Sketcher.Constraint("DistanceX", 0, 2, 0, 1, 3.0),
    Sketcher.Constraint("DistanceY", -1, 1, 0, 2, 1.5),
    Sketcher.Constraint("DistanceX", -1, 1, 0, 2, 3.673669),
])
pocket5 = body.newObject("PartDesign::Pocket", "Pocket004")
pocket5.Profile = sketch10
pocket5.Length = 3
pocket5.Reversed = True
doc.recompute()

mirrored = body.newObject("PartDesign::Mirrored", "Mirrored")
mirrored.Originals = [pocket5]
mirrored.MirrorPlane = (doc.getObject("YZ_Plane"), [""])
body.Tip = mirrored

sketch11 = body.newObject("Sketcher::SketchObject", "Sketch010")
sketch11.AttachmentSupport = (doc.getObject("YZ_Plane"), [""])
sketch11.MapMode = "FlatFace"
sketch11.AttachmentOffset = App.Placement(App.Vector(0, 0, -12.2), App.Rotation())
sketch11.addGeometry([
    Part.LineSegment(App.Vector(6.5, 1.7, 0), App.Vector(3.9, 1.7, 0)),
    Part.LineSegment(App.Vector(3.9, 1.7, 0), App.Vector(3.9, 4.3, 0)),
    Part.LineSegment(App.Vector(3.9, 4.3, 0), App.Vector(6.5, 4.3, 0)),
    Part.LineSegment(App.Vector(6.5, 4.3, 0), App.Vector(6.5, 1.7, 0)),
], False)
sketch11.addConstraint([
    Sketcher.Constraint("Coincident", 0, 2, 1, 1),
    Sketcher.Constraint("Coincident", 1, 2, 2, 1),
    Sketcher.Constraint("Coincident", 2, 2, 3, 1),
    Sketcher.Constraint("Coincident", 3, 2, 0, 1),
    Sketcher.Constraint("Horizontal", 0),
    Sketcher.Constraint("Vertical", 1),
    Sketcher.Constraint("Horizontal", 2),
    Sketcher.Constraint("Vertical", 3),
    Sketcher.Constraint("Equal", 2, 1),
    Sketcher.Constraint("DistanceX", 0, 2, 0, 1, 2.6),
    Sketcher.Constraint("DistanceY", -1, 1, 0, 2, 1.7),
    Sketcher.Constraint("DistanceX", -1, 1, 0, 2, 3.873669),
])
pad6 = body.newObject("PartDesign::Pad", "Pad005")
pad6.Profile = sketch11
pad6.Length = 3

sketch12 = body.newObject("Sketcher::SketchObject", "Sketch011")
sketch12.AttachmentSupport = (doc.getObject("YZ_Plane"), [""])
sketch12.MapMode = "FlatFace"
sketch12.AttachmentOffset = App.Placement(App.Vector(0, 0, 12.2), App.Rotation())
sketch12.addGeometry([
    Part.LineSegment(App.Vector(6.5, 1.7, 0), App.Vector(3.9, 1.7, 0)),
    Part.LineSegment(App.Vector(3.9, 1.7, 0), App.Vector(3.9, 4.3, 0)),
    Part.LineSegment(App.Vector(3.9, 4.3, 0), App.Vector(6.5, 4.3, 0)),
    Part.LineSegment(App.Vector(6.5, 4.3, 0), App.Vector(6.5, 1.7, 0)),
], False)
sketch12.addConstraint([
    Sketcher.Constraint("Coincident", 0, 2, 1, 1),
    Sketcher.Constraint("Coincident", 1, 2, 2, 1),
    Sketcher.Constraint("Coincident", 2, 2, 3, 1),
    Sketcher.Constraint("Coincident", 3, 2, 0, 1),
    Sketcher.Constraint("Horizontal", 0),
    Sketcher.Constraint("Vertical", 1),
    Sketcher.Constraint("Horizontal", 2),
    Sketcher.Constraint("Vertical", 3),
    Sketcher.Constraint("Equal", 2, 1),
    Sketcher.Constraint("DistanceX", 0, 2, 0, 1, 2.6),
    Sketcher.Constraint("DistanceY", -1, 1, 0, 2, 1.7),
    Sketcher.Constraint("DistanceX", -1, 1, 0, 2, 3.873669),
])
pad7 = body.newObject("PartDesign::Pad", "Pad006")
pad7.Profile = sketch12
pad7.Length = 3
pad7.Reversed = True

sketch13 = body.newObject("Sketcher::SketchObject", "Sketch012")
sketch13.AttachmentSupport = (doc.getObject("XY_Plane"), [""])
sketch13.MapMode = "FlatFace"
sketch13.addGeometry([
    Part.LineSegment(App.Vector(-12, 8, 0), App.Vector(-12, -5, 0)),
    Part.LineSegment(App.Vector(-12, -5, 0), App.Vector(18, -5, 0)),
    Part.LineSegment(App.Vector(18, -5, 0), App.Vector(18, 8, 0)),
    Part.LineSegment(App.Vector(18, 8, 0), App.Vector(-12, 8, 0)),
], False)
sketch13.addConstraint([
    Sketcher.Constraint("Coincident", 0, 2, 1, 1),
    Sketcher.Constraint("Coincident", 1, 2, 2, 1),
    Sketcher.Constraint("Coincident", 2, 2, 3, 1),
    Sketcher.Constraint("Coincident", 3, 2, 0, 1),
    Sketcher.Constraint("Vertical", 0),
    Sketcher.Constraint("Horizontal", 1),
    Sketcher.Constraint("Vertical", 2),
    Sketcher.Constraint("Horizontal", 3),
    Sketcher.Constraint("DistanceY", 0, 2, 0, 1, 13.0),
    Sketcher.Constraint("DistanceX", 1, 1, 1, 2, 29.7),
    Sketcher.Constraint("DistanceX", 0, 2, -1, 1, 12.0),
    Sketcher.Constraint("DistanceY", 0, 2, -1, 1, 5.0),
])
pocket6 = body.newObject("PartDesign::Pocket", "Pocket005")
pocket6.Profile = sketch13
pocket6.Length = 10
pocket6.Reversed = True

sketch14 = body.newObject("Sketcher::SketchObject", "Sketch013")
sketch14.AttachmentSupport = (doc.getObject("YZ_Plane"), [""])
sketch14.MapMode = "FlatFace"
sketch14.AttachmentOffset = App.Placement(App.Vector(0, 0, -12.2), App.Rotation())
sketch14.addGeometry([
    Part.LineSegment(App.Vector(6.5, 4.3, 0), App.Vector(3.9, 4.3, 0)),
    Part.LineSegment(App.Vector(3.9, 4.3, 0), App.Vector(3.9, 1.7, 0)),
    Part.LineSegment(App.Vector(3.9, 1.7, 0), App.Vector(6.5, 1.7, 0)),
    Part.LineSegment(App.Vector(6.5, 1.7, 0), App.Vector(6.5, 4.3, 0)),
], False)
sketch14.addConstraint([
    Sketcher.Constraint("Coincident", 0, 2, 1, 1),
    Sketcher.Constraint("Coincident", 1, 2, 2, 1),
    Sketcher.Constraint("Coincident", 2, 2, 3, 1),
    Sketcher.Constraint("Coincident", 3, 2, 0, 1),
    Sketcher.Constraint("Horizontal", 0),
    Sketcher.Constraint("Vertical", 1),
    Sketcher.Constraint("Horizontal", 2),
    Sketcher.Constraint("Vertical", 3),
    Sketcher.Constraint("Equal", 2, 1),
    Sketcher.Constraint("DistanceX", 0, 2, 0, 1, 2.6),
    Sketcher.Constraint("DistanceY", -1, 1, 0, 2, 4.3),
    Sketcher.Constraint("DistanceX", -1, 1, 0, 2, 3.873669),
])
pad8 = body.newObject("PartDesign::Pad", "Pad007")
pad8.Profile = sketch14
pad8.Length = 3

doc.recompute()
